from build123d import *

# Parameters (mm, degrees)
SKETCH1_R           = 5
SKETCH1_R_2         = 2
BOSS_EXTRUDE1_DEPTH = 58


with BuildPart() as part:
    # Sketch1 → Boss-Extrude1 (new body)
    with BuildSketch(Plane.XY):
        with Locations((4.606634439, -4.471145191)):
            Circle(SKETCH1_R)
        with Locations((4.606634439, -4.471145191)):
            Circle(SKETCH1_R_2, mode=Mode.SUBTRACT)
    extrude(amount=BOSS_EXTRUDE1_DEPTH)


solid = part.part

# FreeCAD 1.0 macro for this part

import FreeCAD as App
import Part
import Sketcher
Q = App.Units.Quantity

doc = App.newDocument("Part")
body = doc.addObject("PartDesign::Body", "Body")

sketch1 = body.newObject("Sketcher::SketchObject", "Sketch")
sketch1.AttachmentSupport = (doc.getObject("XY_Plane"), [""])
sketch1.MapMode = "FlatFace"
sketch1.addGeometry(Part.Circle(App.Vector(4.6, -4.5, 0), App.Vector(0, 0, 1), 5), False)
sketch1.addGeometry(Part.Circle(App.Vector(4.6, -4.5, 0), App.Vector(0, 0, 1), 2), False)
sketch1.addConstraint(Sketcher.Constraint("Coincident", 1, 3, 0, 3))
sketch1.addConstraint(Sketcher.Constraint("Diameter", 0, Q("10 mm")))
sketch1.addConstraint(Sketcher.Constraint("Diameter", 1, Q("4 mm")))
sketch1.addConstraint(Sketcher.Constraint("DistanceX", -1, 1, 0, 3, Q("4.606634 mm")))
sketch1.addConstraint(Sketcher.Constraint("DistanceY", 0, 3, -1, 1, Q("4.471145 mm")))
pad1 = body.newObject("PartDesign::Pad", "Pad")
pad1.Profile = sketch1
pad1.Length = 58

doc.recompute()
